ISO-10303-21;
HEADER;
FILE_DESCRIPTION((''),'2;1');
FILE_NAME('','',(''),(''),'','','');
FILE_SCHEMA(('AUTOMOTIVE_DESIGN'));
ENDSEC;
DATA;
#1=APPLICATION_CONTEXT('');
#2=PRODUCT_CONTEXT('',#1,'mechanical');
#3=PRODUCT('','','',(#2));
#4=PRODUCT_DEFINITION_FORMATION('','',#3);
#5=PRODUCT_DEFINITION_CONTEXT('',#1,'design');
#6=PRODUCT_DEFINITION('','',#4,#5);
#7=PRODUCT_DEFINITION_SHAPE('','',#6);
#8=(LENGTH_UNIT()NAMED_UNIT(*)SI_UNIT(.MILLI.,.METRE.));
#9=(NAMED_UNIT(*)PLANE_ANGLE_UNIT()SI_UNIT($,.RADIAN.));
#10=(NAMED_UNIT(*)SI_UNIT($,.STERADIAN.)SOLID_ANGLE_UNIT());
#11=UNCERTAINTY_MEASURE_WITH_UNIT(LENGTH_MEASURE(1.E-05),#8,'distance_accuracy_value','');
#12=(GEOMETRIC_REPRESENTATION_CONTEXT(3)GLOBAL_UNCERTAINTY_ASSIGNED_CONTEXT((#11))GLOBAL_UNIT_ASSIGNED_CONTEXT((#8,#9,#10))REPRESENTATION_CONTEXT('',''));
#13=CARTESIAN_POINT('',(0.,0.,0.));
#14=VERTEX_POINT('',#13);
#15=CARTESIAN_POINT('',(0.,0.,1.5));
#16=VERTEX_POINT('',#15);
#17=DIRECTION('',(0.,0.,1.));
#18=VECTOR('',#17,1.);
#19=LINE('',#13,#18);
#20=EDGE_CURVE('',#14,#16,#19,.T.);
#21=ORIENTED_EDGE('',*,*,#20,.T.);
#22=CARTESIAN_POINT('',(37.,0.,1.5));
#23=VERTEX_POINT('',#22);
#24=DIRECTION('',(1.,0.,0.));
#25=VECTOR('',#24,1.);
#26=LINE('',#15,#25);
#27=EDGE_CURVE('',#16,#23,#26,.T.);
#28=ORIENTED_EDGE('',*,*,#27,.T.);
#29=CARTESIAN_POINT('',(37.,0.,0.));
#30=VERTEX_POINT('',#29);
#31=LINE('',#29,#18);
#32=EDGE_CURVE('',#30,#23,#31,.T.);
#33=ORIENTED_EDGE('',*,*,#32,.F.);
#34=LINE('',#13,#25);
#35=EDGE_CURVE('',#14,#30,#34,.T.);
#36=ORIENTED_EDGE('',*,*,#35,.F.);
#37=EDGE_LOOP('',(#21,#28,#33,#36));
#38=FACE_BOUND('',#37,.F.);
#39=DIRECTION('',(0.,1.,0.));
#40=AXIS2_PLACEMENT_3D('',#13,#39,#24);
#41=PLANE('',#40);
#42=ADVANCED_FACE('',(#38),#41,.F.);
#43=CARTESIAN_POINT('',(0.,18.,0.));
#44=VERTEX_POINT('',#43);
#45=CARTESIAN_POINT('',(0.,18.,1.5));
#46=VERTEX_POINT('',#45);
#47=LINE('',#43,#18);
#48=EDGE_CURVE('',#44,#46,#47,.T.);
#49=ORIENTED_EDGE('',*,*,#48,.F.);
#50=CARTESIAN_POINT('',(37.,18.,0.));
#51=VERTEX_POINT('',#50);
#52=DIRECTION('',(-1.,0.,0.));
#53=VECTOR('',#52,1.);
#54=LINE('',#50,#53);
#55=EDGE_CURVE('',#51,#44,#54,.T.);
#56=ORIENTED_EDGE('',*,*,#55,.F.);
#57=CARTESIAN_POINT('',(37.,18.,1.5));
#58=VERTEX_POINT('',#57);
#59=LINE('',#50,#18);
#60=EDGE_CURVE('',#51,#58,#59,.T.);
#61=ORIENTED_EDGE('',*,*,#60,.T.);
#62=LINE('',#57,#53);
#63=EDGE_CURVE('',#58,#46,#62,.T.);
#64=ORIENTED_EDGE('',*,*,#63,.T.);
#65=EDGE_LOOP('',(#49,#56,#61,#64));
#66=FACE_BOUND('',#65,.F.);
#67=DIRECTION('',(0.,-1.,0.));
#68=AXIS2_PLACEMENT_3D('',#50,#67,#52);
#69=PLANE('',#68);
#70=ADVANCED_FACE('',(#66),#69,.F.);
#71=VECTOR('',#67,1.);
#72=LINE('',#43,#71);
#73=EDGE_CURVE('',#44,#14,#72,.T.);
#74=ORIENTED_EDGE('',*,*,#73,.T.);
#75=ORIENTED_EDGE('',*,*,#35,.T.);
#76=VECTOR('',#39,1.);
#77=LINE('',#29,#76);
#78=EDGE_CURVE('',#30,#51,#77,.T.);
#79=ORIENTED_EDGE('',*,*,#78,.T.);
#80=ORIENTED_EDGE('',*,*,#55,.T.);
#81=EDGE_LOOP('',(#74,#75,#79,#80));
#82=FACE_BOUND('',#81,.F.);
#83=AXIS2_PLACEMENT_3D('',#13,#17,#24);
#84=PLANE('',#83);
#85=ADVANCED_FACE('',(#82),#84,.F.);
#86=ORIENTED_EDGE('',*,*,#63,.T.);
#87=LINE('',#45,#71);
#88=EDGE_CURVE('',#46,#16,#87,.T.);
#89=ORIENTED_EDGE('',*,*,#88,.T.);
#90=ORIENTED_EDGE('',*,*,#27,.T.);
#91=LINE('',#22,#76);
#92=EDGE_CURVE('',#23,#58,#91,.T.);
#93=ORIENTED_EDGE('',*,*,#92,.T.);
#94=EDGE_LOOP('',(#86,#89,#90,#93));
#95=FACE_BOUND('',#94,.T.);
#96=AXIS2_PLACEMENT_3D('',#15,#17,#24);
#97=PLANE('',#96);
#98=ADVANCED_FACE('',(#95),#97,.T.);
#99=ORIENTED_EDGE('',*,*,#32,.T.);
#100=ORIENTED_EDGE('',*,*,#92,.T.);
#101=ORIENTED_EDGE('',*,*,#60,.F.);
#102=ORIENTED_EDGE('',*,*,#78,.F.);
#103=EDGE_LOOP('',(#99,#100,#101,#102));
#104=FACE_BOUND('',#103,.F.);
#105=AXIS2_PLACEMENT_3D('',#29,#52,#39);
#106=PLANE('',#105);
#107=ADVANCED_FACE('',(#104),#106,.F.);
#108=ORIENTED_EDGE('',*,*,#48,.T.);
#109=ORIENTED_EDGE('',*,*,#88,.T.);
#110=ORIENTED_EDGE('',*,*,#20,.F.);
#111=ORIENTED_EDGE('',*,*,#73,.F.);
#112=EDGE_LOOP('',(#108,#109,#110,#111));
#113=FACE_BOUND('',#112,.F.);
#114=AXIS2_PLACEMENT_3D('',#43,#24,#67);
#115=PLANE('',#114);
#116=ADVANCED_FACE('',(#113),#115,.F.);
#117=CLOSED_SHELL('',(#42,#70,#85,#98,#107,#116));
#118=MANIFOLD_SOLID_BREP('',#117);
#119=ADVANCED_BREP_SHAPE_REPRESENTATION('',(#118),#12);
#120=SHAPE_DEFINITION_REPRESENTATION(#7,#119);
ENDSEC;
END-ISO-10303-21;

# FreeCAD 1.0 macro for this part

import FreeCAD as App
import Part
import Sketcher
Q = App.Units.Quantity

doc = App.newDocument("Part")
body = doc.addObject("PartDesign::Body", "Body")

# Sketch on XY plane
sketch1 = body.newObject("Sketcher::SketchObject", "Sketch")
sketch1.AttachmentSupport = (doc.getObject("XY_Plane"), [""])
sketch1.MapMode = "FlatFace"
sketch1.addGeometry([
    Part.LineSegment(App.Vector(0, 18, 0), App.Vector(0, 0, 0)),
    Part.LineSegment(App.Vector(0, 0, 0), App.Vector(37, 0, 0)),
    Part.LineSegment(App.Vector(37, 0, 0), App.Vector(37, 18, 0)),
    Part.LineSegment(App.Vector(37, 18, 0), App.Vector(0, 18, 0)),
], False)
sketch1.addConstraint([
    Sketcher.Constraint("Coincident", 0, 2, 1, 1),
    Sketcher.Constraint("Coincident", 1, 2, 2, 1),
    Sketcher.Constraint("Coincident", 2, 2, 3, 1),
    Sketcher.Constraint("Coincident", 3, 2, 0, 1),
    Sketcher.Constraint("Vertical", 0),
    Sketcher.Constraint("Horizontal", 1),
    Sketcher.Constraint("Vertical", 2),
    Sketcher.Constraint("Horizontal", 3),
    Sketcher.Constraint("Coincident", 0, 2, -1, 1),
    Sketcher.Constraint("DistanceX", 1, 1, 1, 2, Q("37 mm")),
    Sketcher.Constraint("DistanceY", 0, 2, 0, 1, Q("18 mm")),
])
pad1 = body.newObject("PartDesign::Pad", "Pad")
pad1.Profile = sketch1
pad1.Length = 1.5

doc.recompute()
